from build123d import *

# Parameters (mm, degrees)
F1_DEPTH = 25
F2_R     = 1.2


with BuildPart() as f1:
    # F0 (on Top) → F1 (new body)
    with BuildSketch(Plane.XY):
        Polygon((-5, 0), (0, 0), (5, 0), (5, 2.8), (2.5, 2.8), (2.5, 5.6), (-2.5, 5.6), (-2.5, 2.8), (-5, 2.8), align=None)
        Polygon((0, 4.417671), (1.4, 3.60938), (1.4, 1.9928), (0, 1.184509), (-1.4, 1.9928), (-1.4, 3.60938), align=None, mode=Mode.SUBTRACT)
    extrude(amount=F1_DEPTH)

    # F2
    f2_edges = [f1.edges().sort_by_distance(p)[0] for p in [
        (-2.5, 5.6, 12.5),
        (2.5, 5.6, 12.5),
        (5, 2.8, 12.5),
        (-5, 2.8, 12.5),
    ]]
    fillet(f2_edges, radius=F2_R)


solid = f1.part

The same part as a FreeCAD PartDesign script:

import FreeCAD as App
import Part
import Sketcher
from FreeCAD import Vector
Q = App.Units.Quantity


def edges_at(feature, points):
    """Names of the edges that pass closest to the given points."""
    edges = feature.Shape.Edges
    near = lambda p: min(range(len(edges)), key=lambda i: edges[i].distToShape(Part.Vertex(*p))[0])
    return sorted({f"Edge{near(p) + 1}" for p in points})


def add_polygon(sketch, points):
    """Adds a closed chain of lines whose ends are joined by coincident constraints."""
    first, n = sketch.GeometryCount, len(points)
    for a, b in zip(points, points[1:] + points[:1]):
        sketch.addGeometry(Part.LineSegment(App.Vector(*a, 0), App.Vector(*b, 0)), False)
    for i in range(n):
        sketch.addConstraint(Sketcher.Constraint("Coincident", first + i, 2, first + (i + 1) % n, 1))

doc = App.newDocument("Part")
body = doc.addObject("PartDesign::Body", "Body")

sketch1 = body.newObject("Sketcher::SketchObject", "Sketch")
sketch1.AttachmentSupport = (doc.getObject("XY_Plane"), [""])
sketch1.MapMode = "FlatFace"
add_polygon(sketch1, [(-5, 0), (5, 0), (5, 2.8), (2.5, 2.8), (2.5, 5.6), (-2.5, 5.6), (-2.5, 2.8), (-5, 2.8)])
add_polygon(sketch1, [(-1.4, 3.6), (0, 4.4), (1.4, 3.6), (1.4, 2), (0, 1.2), (-1.4, 2)])
sketch1.addConstraint(Sketcher.Constraint("Horizontal", 0))
sketch1.addConstraint(Sketcher.Constraint("Vertical", 1))
sketch1.addConstraint(Sketcher.Constraint("Horizontal", 2))
sketch1.addConstraint(Sketcher.Constraint("Vertical", 3))
sketch1.addConstraint(Sketcher.Constraint("Horizontal", 4))
sketch1.addConstraint(Sketcher.Constraint("Vertical", 5))
sketch1.addConstraint(Sketcher.Constraint("Horizontal", 6))
sketch1.addConstraint(Sketcher.Constraint("Vertical", 7))
sketch1.addConstraint(Sketcher.Constraint("Vertical", 10))
sketch1.addConstraint(Sketcher.Constraint("Vertical", 13))
sketch1.addConstraint(Sketcher.Constraint("Symmetric", 0, 2, 7, 2, -1, 1))
sketch1.addConstraint(Sketcher.Constraint("Symmetric", 2, 2, 5, 2, -2))
sketch1.addConstraint(Sketcher.Constraint("Symmetric", 10, 2, 12, 2, -2))
sketch1.addConstraint(Sketcher.Constraint("PointOnObject", 8, 2, -2))
sketch1.addConstraint(Sketcher.Constraint("PointOnObject", 11, 2, -2))
sketch1.addConstraint(Sketcher.Constraint("Parallel", 8, 11))
sketch1.addConstraint(Sketcher.Constraint("Parallel", 9, 12))
sketch1.addConstraint(Sketcher.Constraint("Equal", 1, 3))
sketch1.addConstraint(Sketcher.Constraint("DistanceX", 0, 1, 0, 2, Q("10 mm")))
sketch1.addConstraint(Sketcher.Constraint("DistanceX", 4, 2, 4, 1, Q("5 mm")))
sketch1.addConstraint(Sketcher.Constraint("Angle", 8, Q("30.000019 deg")))
sketch1.addConstraint(Sketcher.Constraint("DistanceY", 1, 1, 1, 2, Q("2.8 mm")))
sketch1.addConstraint(Sketcher.Constraint("DistanceX", -1, 1, 9, 2, Q("1.4 mm")))
sketch1.addConstraint(Sketcher.Constraint("DistanceY", 10, 2, 10, 1, Q("1.61658 mm")))
sketch1.addConstraint(Sketcher.Constraint("DistanceY", -1, 1, 10, 2, Q("1.9928 mm")))
pad1 = body.newObject("PartDesign::Pad", "Pad")
pad1.Profile = sketch1
pad1.Length = 25
doc.recompute()

fillet = body.newObject("PartDesign::Fillet", "Fillet")
fillet.Base = (pad1, edges_at(pad1, [
    (-2.5, 5.6, 12.5),
    (2.5, 5.6, 12.5),
    (5, 2.8, 12.5),
    (-5, 2.8, 12.5),
]))
fillet.Radius = 1.2

doc.recompute()
